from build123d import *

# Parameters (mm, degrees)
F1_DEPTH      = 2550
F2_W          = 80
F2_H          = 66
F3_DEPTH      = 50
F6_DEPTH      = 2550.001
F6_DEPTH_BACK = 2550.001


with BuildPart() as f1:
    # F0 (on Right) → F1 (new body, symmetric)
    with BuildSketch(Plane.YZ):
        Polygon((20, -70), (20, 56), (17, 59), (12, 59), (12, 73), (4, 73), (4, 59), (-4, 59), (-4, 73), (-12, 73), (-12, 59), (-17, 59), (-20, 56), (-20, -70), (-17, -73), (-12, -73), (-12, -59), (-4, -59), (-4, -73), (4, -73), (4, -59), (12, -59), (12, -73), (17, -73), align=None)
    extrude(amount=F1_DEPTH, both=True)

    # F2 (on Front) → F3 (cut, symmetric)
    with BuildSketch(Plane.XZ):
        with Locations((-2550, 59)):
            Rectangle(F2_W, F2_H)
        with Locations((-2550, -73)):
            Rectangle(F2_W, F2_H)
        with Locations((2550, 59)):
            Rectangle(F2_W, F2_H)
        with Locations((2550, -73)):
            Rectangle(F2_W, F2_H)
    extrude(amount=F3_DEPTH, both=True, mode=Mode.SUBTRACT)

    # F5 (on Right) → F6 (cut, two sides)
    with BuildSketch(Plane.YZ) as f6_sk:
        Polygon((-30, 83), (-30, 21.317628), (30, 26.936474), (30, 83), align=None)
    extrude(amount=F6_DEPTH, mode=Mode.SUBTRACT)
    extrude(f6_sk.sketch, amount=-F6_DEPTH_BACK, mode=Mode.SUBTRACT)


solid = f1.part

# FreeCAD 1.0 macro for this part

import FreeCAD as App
import Part
import Sketcher
Q = App.Units.Quantity


def add_polygon(sketch, points):
    """Adds a closed chain of lines whose ends are joined by coincident constraints."""
    first, n = sketch.GeometryCount, len(points)
    for a, b in zip(points, points[1:] + points[:1]):
        sketch.addGeometry(Part.LineSegment(App.Vector(*a, 0), App.Vector(*b, 0)), False)
    for i in range(n):
        sketch.addConstraint(Sketcher.Constraint("Coincident", first + i, 2, first + (i + 1) % n, 1))

doc = App.newDocument("Part")
body = doc.addObject("PartDesign::Body", "Body")

# Sketch on YZ plane
sketch1 = body.newObject("Sketcher::SketchObject", "Sketch")
sketch1.AttachmentSupport = (doc.getObject("YZ_Plane"), [""])
sketch1.MapMode = "FlatFace"
add_polygon(sketch1, [(20, -70), (20, 56), (17, 59), (12, 59), (12, 73), (4, 73), (4, 59), (-4, 59), (-4, 73), (-12, 73), (-12, 59), (-17, 59), (-20, 56), (-20, -70), (-17, -73), (-12, -73), (-12, -59), (-4, -59), (-4, -73), (4, -73), (4, -59), (12, -59), (12, -73), (17, -73)])  # lines 0-23
sketch1.addConstraint([
    Sketcher.Constraint("Vertical", 0),
    Sketcher.Constraint("Horizontal", 2),
    Sketcher.Constraint("Vertical", 3),
    Sketcher.Constraint("Horizontal", 4),
    Sketcher.Constraint("Vertical", 5),
    Sketcher.Constraint("Horizontal", 6),
    Sketcher.Constraint("Vertical", 7),
    Sketcher.Constraint("Horizontal", 8),
    Sketcher.Constraint("Vertical", 9),
    Sketcher.Constraint("Horizontal", 10),
    Sketcher.Constraint("Vertical", 12),
    Sketcher.Constraint("Horizontal", 14),
    Sketcher.Constraint("Vertical", 15),
    Sketcher.Constraint("Horizontal", 16),
    Sketcher.Constraint("Vertical", 17),
    Sketcher.Constraint("Horizontal", 18),
    Sketcher.Constraint("Vertical", 19),
    Sketcher.Constraint("Horizontal", 20),
    Sketcher.Constraint("Vertical", 21),
    Sketcher.Constraint("Horizontal", 22),
    Sketcher.Constraint("Symmetric", 3, 2, 14, 2, -1, 1),
    Sketcher.Constraint("Symmetric", 5, 2, 16, 2, -1, 1),
    Sketcher.Constraint("Symmetric", 7, 2, 18, 2, -1, 1),
    Sketcher.Constraint("Symmetric", 9, 2, 20, 2, -1, 1),
    Sketcher.Constraint("Symmetric", 4, 2, 7, 2, -2),
    Sketcher.Constraint("Symmetric", 2, 2, 9, 2, -2),
    Sketcher.Constraint("Symmetric", 0, 2, 11, 2, -2),
    Sketcher.Constraint("Symmetric", 13, 2, 22, 2, -2),
    Sketcher.Constraint("Perpendicular", 1, 11),
    Sketcher.Constraint("Perpendicular", 11, 13),
    Sketcher.Constraint("Perpendicular", 13, 23),
    Sketcher.Constraint("Horizontal", 2, 2, 5, 2),
    Sketcher.Constraint("Horizontal", 12, 2, 23, 2),
    Sketcher.Constraint("Vertical", 10, 2, 13, 2),
    Sketcher.Constraint("Equal", 4, 6),
    Sketcher.Constraint("DistanceX", 2, 2, 2, 1, 5.0),
    Sketcher.Constraint("DistanceX", 4, 2, 4, 1, 8.0),
    Sketcher.Constraint("DistanceY", 0, 1, 0, 2, 126.0),
    Sketcher.Constraint("DistanceY", 3, 1, 3, 2, 14.0),
    Sketcher.Constraint("DistanceX", -1, 1, 0, 2, 20.0),
])
pad1 = body.newObject("PartDesign::Pad", "Pad")
pad1.Profile = sketch1
pad1.Length = 5100
pad1.Midplane = True

# Sketch on XZ plane
sketch2 = body.newObject("Sketcher::SketchObject", "Sketch001")
sketch2.AttachmentSupport = (doc.getObject("XZ_Plane"), [""])
sketch2.MapMode = "FlatFace"
add_polygon(sketch2, [(-2590, 92), (-2590, 26), (-2510, 26), (-2510, 92)])  # lines 0-3
add_polygon(sketch2, [(-2590, -40), (-2590, -106), (-2510, -106), (-2510, -40)])  # lines 4-7
add_polygon(sketch2, [(2510, 92), (2510, 26), (2590, 26), (2590, 92)])  # lines 8-11
add_polygon(sketch2, [(2510, -40), (2510, -106), (2590, -106), (2590, -40)])  # lines 12-15
sketch2.addConstraint([
    Sketcher.Constraint("Vertical", 0),
    Sketcher.Constraint("Horizontal", 1),
    Sketcher.Constraint("Vertical", 2),
    Sketcher.Constraint("Horizontal", 3),
    Sketcher.Constraint("Vertical", 4),
    Sketcher.Constraint("Horizontal", 5),
    Sketcher.Constraint("Vertical", 6),
    Sketcher.Constraint("Horizontal", 7),
    Sketcher.Constraint("Vertical", 8),
    Sketcher.Constraint("Horizontal", 9),
    Sketcher.Constraint("Vertical", 10),
    Sketcher.Constraint("Horizontal", 11),
    Sketcher.Constraint("Vertical", 12),
    Sketcher.Constraint("Horizontal", 13),
    Sketcher.Constraint("Vertical", 14),
    Sketcher.Constraint("Horizontal", 15),
    Sketcher.Constraint("Symmetric", 1, 2, 8, 2, -2),
    Sketcher.Constraint("Symmetric", 3, 2, 10, 2, -2),
    Sketcher.Constraint("Symmetric", 5, 2, 12, 2, -2),
    Sketcher.Constraint("Symmetric", 7, 2, 14, 2, -2),
    Sketcher.Constraint("Vertical", 3, 2, 4, 2),
    Sketcher.Constraint("Vertical", 2, 2, 5, 2),
    Sketcher.Constraint("Equal", 2, 4),
    Sketcher.Constraint("DistanceX", 1, 1, 1, 2, 80.0),
    Sketcher.Constraint("DistanceY", 0, 2, 0, 1, 66.0),
    Sketcher.Constraint("DistanceX", 0, 2, -1, 1, 2590.0),
    Sketcher.Constraint("DistanceY", -1, 1, 0, 2, 26.0),
    Sketcher.Constraint("DistanceY", 4, 2, -1, 1, 106.0),
])
pocket1 = body.newObject("PartDesign::Pocket", "Pocket")
pocket1.Profile = sketch2
pocket1.Length = 100
pocket1.Midplane = True

# Sketch on YZ plane
sketch3 = body.newObject("Sketcher::SketchObject", "Sketch002")
sketch3.AttachmentSupport = (doc.getObject("YZ_Plane"), [""])
sketch3.MapMode = "FlatFace"
add_polygon(sketch3, [(-30, 83), (-30, 21), (30, 27), (30, 83)])  # lines 0-3
sketch3.addConstraint([
    Sketcher.Constraint("Vertical", 0),
    Sketcher.Constraint("Vertical", 2),
    Sketcher.Constraint("Horizontal", 3),
    Sketcher.Constraint("DistanceX", 3, 2, 3, 1, 60.0),
    Sketcher.Constraint("DistanceX", 0, 2, -1, 1, 30.0),
    Sketcher.Constraint("DistanceY", -1, 1, 2, 2, 83.0),
    Sketcher.Constraint("Angle", 1, Q("5.35 deg")),
    Sketcher.Constraint("DistanceY", 0, 2, 0, 1, 61.682372),
])
pocket2 = body.newObject("PartDesign::Pocket", "Pocket001")
pocket2.Profile = sketch3
pocket2.Type = "ThroughAll"
pocket2.Midplane = True

doc.recompute()
